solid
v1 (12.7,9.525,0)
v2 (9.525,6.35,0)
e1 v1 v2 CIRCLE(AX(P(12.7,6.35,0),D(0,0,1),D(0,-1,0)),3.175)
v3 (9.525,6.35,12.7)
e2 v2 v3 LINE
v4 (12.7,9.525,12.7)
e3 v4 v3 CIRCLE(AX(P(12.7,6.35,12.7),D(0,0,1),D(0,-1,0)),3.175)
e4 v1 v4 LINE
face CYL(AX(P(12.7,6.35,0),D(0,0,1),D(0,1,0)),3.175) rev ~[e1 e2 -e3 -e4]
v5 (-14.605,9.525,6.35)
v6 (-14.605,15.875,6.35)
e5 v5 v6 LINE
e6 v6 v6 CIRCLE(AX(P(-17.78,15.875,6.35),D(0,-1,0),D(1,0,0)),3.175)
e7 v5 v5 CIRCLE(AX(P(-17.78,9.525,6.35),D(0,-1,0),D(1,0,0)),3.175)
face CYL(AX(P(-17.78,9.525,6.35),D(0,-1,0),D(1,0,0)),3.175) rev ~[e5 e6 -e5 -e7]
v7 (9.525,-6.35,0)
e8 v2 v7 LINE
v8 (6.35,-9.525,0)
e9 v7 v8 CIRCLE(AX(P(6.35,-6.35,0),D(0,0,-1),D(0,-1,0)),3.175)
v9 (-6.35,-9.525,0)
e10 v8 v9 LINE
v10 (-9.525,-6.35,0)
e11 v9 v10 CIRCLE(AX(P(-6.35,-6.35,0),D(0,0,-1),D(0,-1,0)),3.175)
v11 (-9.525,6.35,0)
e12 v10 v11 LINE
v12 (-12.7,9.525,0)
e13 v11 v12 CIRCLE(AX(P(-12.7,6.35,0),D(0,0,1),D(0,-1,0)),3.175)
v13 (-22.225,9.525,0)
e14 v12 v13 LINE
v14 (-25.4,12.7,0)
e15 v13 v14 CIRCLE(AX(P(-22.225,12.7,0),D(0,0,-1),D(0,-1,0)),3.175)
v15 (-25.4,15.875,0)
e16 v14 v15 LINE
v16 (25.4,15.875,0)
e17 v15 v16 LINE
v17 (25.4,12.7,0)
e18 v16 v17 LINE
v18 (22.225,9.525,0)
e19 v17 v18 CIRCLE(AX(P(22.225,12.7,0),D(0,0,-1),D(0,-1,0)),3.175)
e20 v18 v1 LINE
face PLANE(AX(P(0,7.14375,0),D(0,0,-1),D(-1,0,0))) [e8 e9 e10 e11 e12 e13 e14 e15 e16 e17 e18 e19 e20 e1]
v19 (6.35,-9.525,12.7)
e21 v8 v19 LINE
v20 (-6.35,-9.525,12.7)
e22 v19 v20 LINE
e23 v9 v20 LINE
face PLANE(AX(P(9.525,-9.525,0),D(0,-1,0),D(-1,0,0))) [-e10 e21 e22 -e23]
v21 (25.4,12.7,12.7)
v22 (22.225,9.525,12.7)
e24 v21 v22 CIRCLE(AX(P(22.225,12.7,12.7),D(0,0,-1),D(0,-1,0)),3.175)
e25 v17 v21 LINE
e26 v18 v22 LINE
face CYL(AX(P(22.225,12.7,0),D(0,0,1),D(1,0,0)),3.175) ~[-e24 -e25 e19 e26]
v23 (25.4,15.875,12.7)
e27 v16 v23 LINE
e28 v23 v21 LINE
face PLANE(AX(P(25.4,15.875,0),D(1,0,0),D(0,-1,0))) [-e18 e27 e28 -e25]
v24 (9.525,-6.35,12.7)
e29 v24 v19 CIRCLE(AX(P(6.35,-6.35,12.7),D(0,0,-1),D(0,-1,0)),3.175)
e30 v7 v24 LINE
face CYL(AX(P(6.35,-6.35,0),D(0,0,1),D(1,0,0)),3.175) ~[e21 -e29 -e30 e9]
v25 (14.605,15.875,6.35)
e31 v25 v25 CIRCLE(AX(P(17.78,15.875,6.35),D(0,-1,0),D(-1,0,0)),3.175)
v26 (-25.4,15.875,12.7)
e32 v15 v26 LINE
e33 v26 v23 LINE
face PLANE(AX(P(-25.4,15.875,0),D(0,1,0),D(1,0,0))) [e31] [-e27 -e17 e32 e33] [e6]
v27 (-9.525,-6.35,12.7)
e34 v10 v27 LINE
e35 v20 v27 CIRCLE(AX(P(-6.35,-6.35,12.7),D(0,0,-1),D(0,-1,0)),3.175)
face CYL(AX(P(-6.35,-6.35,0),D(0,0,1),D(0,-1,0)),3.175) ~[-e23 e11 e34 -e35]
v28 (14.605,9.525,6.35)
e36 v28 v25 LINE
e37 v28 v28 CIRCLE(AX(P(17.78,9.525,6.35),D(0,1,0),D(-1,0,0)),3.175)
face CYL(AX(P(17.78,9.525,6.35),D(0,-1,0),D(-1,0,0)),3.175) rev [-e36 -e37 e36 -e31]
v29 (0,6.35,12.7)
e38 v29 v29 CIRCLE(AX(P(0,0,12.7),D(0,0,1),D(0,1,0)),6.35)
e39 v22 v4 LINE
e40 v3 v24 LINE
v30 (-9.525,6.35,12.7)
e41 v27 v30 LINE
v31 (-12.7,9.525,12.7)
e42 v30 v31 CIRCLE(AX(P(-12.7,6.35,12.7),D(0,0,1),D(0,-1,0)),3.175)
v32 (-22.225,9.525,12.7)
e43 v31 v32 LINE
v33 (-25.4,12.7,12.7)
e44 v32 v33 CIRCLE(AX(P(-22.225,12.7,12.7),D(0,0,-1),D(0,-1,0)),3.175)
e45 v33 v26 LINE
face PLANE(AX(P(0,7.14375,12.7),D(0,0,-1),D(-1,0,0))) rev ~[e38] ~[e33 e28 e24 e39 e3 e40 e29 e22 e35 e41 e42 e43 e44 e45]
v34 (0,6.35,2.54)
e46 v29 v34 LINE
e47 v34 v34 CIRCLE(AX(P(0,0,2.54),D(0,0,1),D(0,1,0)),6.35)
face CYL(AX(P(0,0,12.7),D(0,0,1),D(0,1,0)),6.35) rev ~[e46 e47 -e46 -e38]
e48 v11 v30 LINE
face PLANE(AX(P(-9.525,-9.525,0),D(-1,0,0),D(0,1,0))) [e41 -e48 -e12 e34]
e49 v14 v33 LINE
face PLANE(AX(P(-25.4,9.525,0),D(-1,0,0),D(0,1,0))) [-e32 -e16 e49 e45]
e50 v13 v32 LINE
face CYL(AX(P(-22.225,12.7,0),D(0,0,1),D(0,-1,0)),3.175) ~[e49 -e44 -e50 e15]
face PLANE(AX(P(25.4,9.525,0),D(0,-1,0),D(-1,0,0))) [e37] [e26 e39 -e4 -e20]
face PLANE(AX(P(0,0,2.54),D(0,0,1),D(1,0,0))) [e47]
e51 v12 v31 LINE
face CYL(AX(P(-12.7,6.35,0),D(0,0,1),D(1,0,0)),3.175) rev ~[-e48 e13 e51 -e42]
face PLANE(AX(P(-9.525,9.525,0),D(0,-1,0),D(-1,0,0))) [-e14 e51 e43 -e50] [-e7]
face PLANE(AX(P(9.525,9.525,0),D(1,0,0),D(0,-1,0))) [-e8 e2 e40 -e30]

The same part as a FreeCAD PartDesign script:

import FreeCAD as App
import Part
import Sketcher

V = App.Vector
Q = App.Units.Quantity


def edges_at(feature, points):
    """Names of the edges that pass closest to the given points."""
    edges = feature.Shape.Edges
    near = lambda p: min(range(len(edges)), key=lambda i: edges[i].distToShape(Part.Vertex(*p))[0])
    return sorted({f"Edge{near(p) + 1}" for p in points})


def add_polygon(sketch, points):
    """Adds a closed chain of lines whose ends are joined by coincident constraints."""
    first, n = sketch.GeometryCount, len(points)
    for a, b in zip(points, points[1:] + points[:1]):
        sketch.addGeometry(Part.LineSegment(App.Vector(*a, 0), App.Vector(*b, 0)), False)
    for i in range(n):
        sketch.addConstraint(Sketcher.Constraint("Coincident", first + i, 2, first + (i + 1) % n, 1))

doc = App.newDocument("Part")
params = doc.addObject("Spreadsheet::Sheet", "Params")
for row, (alias, value) in enumerate([
    ("pad1_length", "0.5 in"),
    ("fillet_radius", "0.125 in"),
    ("sketch2_diameter", "0.5 in"),
    ("pocket1_length", "0.4 in"),
    ("sketch3_diameter", "0.25 in"),
    ("pocket2_length", "1 in"),
], start=1):
    params.set(f"A{row}", alias)
    params.set(f"B{row}", "=" + value)
    params.setAlias(f"B{row}", alias)

body = doc.addObject("PartDesign::Body", "Body")

sketch1 = body.newObject("Sketcher::SketchObject", "Sketch")
sketch1.AttachmentSupport = (doc.getObject("XY_Plane"), [""])
sketch1.MapMode = "FlatFace"
add_polygon(sketch1, [(25, 16), (-25, 16), (-25, 10), (-10, 10), (-10, -10), (10, -10), (10, 10), (25, 10)])
sketch1.addConstraint(Sketcher.Constraint("Horizontal", 0))
sketch1.addConstraint(Sketcher.Constraint("Vertical", 1))
sketch1.addConstraint(Sketcher.Constraint("Horizontal", 2))
sketch1.addConstraint(Sketcher.Constraint("Vertical", 3))
sketch1.addConstraint(Sketcher.Constraint("Horizontal", 4))
sketch1.addConstraint(Sketcher.Constraint("Vertical", 5))
sketch1.addConstraint(Sketcher.Constraint("Horizontal", 6))
sketch1.addConstraint(Sketcher.Constraint("Vertical", 7))
sketch1.addConstraint(Sketcher.Constraint("Symmetric", 2, 2, 4, 2, -1, 1))
sketch1.addConstraint(Sketcher.Constraint("Symmetric", 1, 2, 6, 2, -2))
sketch1.addConstraint(Sketcher.Constraint("Equal", 4, 3))
sketch1.addConstraint(Sketcher.Constraint("DistanceX", 0, 2, -1, 1, Q("1 in")))
sketch1.addConstraint(Sketcher.Constraint("DistanceY", 3, 2, 0, 2, Q("1 in")))
sketch1.addConstraint(Sketcher.Constraint("DistanceY", -1, 1, 1, 2, Q("0.375 in")))
pad1 = body.newObject("PartDesign::Pad", "Pad")
pad1.Profile = sketch1
pad1.setExpression("Length", "Params.pad1_length")
doc.recompute()

fillet = body.newObject("PartDesign::Fillet", "Fillet")
fillet.Base = (pad1, edges_at(pad1, [
    (9.525, 9.525, 6.35),
    (9.525, -9.525, 6.35),
    (-9.525, -9.525, 6.35),
    (25.4, 9.525, 6.35),
    (-9.525, 9.525, 6.35),
    (-25.4, 9.525, 6.35),
]))
fillet.setExpression("Radius", "Params.fillet_radius")

sketch2 = body.newObject("Sketcher::SketchObject", "Sketch001")
sketch2.AttachmentSupport = (doc.getObject("XY_Plane"), [""])
sketch2.MapMode = "FlatFace"
sketch2.AttachmentOffset = App.Placement(V(0, 0, 0.5 * 25.4), App.Rotation())
sketch2.addGeometry(Part.Circle(V(0, 0, 0), V(0, 0, 1), 6), False)
sketch2.addConstraint(Sketcher.Constraint("Coincident", 0, 3, -1, 1))
sketch2.addConstraint(Sketcher.Constraint("Diameter", 0, Q("0.5 in")))
sketch2.setExpression("Constraints[1]", "Params.sketch2_diameter")
pocket1 = body.newObject("PartDesign::Pocket", "Pocket")
pocket1.Profile = sketch2
pocket1.setExpression("Length", "Params.pocket1_length")

sketch3 = body.newObject("Sketcher::SketchObject", "Sketch002")
sketch3.AttachmentSupport = (doc.getObject("XZ_Plane"), [""])
sketch3.MapMode = "FlatFace"
sketch3.AttachmentOffset = App.Placement(V(0, 0, -0.375 * 25.4), App.Rotation())
sketch3.addGeometry(Part.Circle(V(-17.8, 6.3, 0), V(0, 0, 1), 3.2), False)
sketch3.addConstraint(Sketcher.Constraint("Diameter", 0, Q("0.25 in")))
sketch3.addConstraint(Sketcher.Constraint("DistanceX", 0, 3, -1, 1, Q("0.7 in")))
sketch3.addConstraint(Sketcher.Constraint("DistanceY", -1, 1, 0, 3, Q("0.25 in")))
sketch3.setExpression("Constraints[0]", "Params.sketch3_diameter")
pocket2 = body.newObject("PartDesign::Pocket", "Pocket001")
pocket2.Profile = sketch3
pocket2.setExpression("Length", "Params.pocket2_length")
doc.recompute()

mirrored = body.newObject("PartDesign::Mirrored", "Mirrored")
mirrored.Originals = [pocket2]
mirrored.MirrorPlane = (doc.getObject("YZ_Plane"), [""])
body.Tip = mirrored

doc.recompute()
